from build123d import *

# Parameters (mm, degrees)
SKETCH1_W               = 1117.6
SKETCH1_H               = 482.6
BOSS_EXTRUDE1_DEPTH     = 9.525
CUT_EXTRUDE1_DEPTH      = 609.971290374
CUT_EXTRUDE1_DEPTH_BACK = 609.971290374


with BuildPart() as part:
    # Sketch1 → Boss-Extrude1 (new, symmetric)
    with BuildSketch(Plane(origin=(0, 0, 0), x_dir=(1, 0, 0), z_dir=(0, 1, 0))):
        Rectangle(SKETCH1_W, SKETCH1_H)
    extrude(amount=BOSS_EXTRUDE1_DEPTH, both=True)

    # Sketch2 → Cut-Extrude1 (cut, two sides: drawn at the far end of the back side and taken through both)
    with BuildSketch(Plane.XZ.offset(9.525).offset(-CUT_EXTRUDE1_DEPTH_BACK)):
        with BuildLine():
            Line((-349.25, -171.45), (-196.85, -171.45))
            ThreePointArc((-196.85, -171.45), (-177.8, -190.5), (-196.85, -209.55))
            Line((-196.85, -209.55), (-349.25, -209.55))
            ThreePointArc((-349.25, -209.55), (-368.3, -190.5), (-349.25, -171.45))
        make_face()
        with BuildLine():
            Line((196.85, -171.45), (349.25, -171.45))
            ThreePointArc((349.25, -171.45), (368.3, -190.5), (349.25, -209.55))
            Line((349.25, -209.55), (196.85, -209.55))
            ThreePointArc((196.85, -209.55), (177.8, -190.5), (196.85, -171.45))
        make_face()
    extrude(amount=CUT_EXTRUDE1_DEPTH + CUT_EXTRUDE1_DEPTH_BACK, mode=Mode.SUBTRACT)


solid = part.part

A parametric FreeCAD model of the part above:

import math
import FreeCAD as App
import Part
import Sketcher
from FreeCAD import Vector
Q = App.Units.Quantity


def add_polygon(sketch, points):
    """Adds a closed chain of lines whose ends are joined by coincident constraints."""
    first, n = sketch.GeometryCount, len(points)
    for a, b in zip(points, points[1:] + points[:1]):
        sketch.addGeometry(Part.LineSegment(App.Vector(*a, 0), App.Vector(*b, 0)), False)
    for i in range(n):
        sketch.addConstraint(Sketcher.Constraint("Coincident", first + i, 2, first + (i + 1) % n, 1))

doc = App.newDocument("Part")
body = doc.addObject("PartDesign::Body", "Body")

sketch1 = doc.addObject("Sketcher::SketchObject", "Sketch")
body.addObject(sketch1)
sketch1.AttachmentSupport = (doc.XZ_Plane, [""])
sketch1.MapMode = "FlatFace"
add_polygon(sketch1, [(-559, -241), (-559, 241), (559, 241), (559, -241)])
sketch1.addConstraint(Sketcher.Constraint("Vertical", 0))
sketch1.addConstraint(Sketcher.Constraint("Horizontal", 1))
sketch1.addConstraint(Sketcher.Constraint("Vertical", 2))
sketch1.addConstraint(Sketcher.Constraint("Horizontal", 3))
sketch1.addConstraint(Sketcher.Constraint("Symmetric", 0, 2, 2, 2, -1, 1))
sketch1.addConstraint(Sketcher.Constraint("DistanceX", 1, 1, 1, 2, Q("44 in")))
sketch1.addConstraint(Sketcher.Constraint("DistanceY", 0, 1, 0, 2, Q("19 in")))
pad1 = doc.addObject("PartDesign::Pad", "Pad")
body.addObject(pad1)
pad1.Profile = sketch1
pad1.Length = Q("0.75 in")
pad1.Midplane = True

sketch2 = doc.addObject("Sketcher::SketchObject", "Sketch001")
body.addObject(sketch2)
sketch2.AttachmentSupport = (doc.XZ_Plane, [""])
sketch2.MapMode = "FlatFace"
sketch2.AttachmentOffset = App.Placement(Vector(0, 0, 0.375 * 25.4), App.Rotation())
sketch2.addGeometry(Part.LineSegment(Vector(-197, -171, 0), Vector(-349, -171, 0)), False)
sketch2.addGeometry(Part.ArcOfCircle(Part.Circle(Vector(-349, -190, 0), Vector(0, 0, 1), 19), math.radians(90), math.radians(270)), False)
sketch2.addGeometry(Part.LineSegment(Vector(-349, -210, 0), Vector(-197, -210, 0)), False)
sketch2.addGeometry(Part.ArcOfCircle(Part.Circle(Vector(-197, -190, 0), Vector(0, 0, 1), 19), math.radians(-90), math.radians(90)), False)
sketch2.addGeometry(Part.LineSegment(Vector(349, -171, 0), Vector(197, -171, 0)), False)
sketch2.addGeometry(Part.ArcOfCircle(Part.Circle(Vector(197, -190, 0), Vector(0, 0, 1), 19), math.radians(90), math.radians(270)), False)
sketch2.addGeometry(Part.LineSegment(Vector(197, -210, 0), Vector(349, -210, 0)), False)
sketch2.addGeometry(Part.ArcOfCircle(Part.Circle(Vector(349, -190, 0), Vector(0, 0, 1), 19), math.radians(-90), math.radians(90)), False)
sketch2.addConstraint(Sketcher.Constraint("Tangent", 0, 2, 1, 1))
sketch2.addConstraint(Sketcher.Constraint("Tangent", 1, 2, 2, 1))
sketch2.addConstraint(Sketcher.Constraint("Tangent", 2, 2, 3, 1))
sketch2.addConstraint(Sketcher.Constraint("Tangent", 3, 2, 0, 1))
sketch2.addConstraint(Sketcher.Constraint("Tangent", 4, 2, 5, 1))
sketch2.addConstraint(Sketcher.Constraint("Tangent", 5, 2, 6, 1))
sketch2.addConstraint(Sketcher.Constraint("Tangent", 6, 2, 7, 1))
sketch2.addConstraint(Sketcher.Constraint("Tangent", 7, 2, 4, 1))
sketch2.addConstraint(Sketcher.Constraint("Horizontal", 0))
sketch2.addConstraint(Sketcher.Constraint("Horizontal", 2))
sketch2.addConstraint(Sketcher.Constraint("Horizontal", 4))
sketch2.addConstraint(Sketcher.Constraint("Horizontal", 6))
sketch2.addConstraint(Sketcher.Constraint("Equal", 3, 5))
sketch2.addConstraint(Sketcher.Constraint("Symmetric", 3, 3, 5, 3, -2))
sketch2.addConstraint(Sketcher.Constraint("Equal", 2, 4))
sketch2.addConstraint(Sketcher.Constraint("DistanceX", 0, 2, 0, 1, Q("6 in")))
sketch2.addConstraint(Sketcher.Constraint("Radius", 1, Q("0.75 in")))
sketch2.addConstraint(Sketcher.Constraint("DistanceY", 1, 3, -1, 1, Q("7.5 in")))
sketch2.addConstraint(Sketcher.Constraint("DistanceX", 3, 3, 5, 3, Q("15.5 in")))
pocket1 = doc.addObject("PartDesign::Pocket", "Pocket")
body.addObject(pocket1)
pocket1.Profile = sketch2
pocket1.Type = "ThroughAll"
pocket1.Midplane = True

doc.recompute()
